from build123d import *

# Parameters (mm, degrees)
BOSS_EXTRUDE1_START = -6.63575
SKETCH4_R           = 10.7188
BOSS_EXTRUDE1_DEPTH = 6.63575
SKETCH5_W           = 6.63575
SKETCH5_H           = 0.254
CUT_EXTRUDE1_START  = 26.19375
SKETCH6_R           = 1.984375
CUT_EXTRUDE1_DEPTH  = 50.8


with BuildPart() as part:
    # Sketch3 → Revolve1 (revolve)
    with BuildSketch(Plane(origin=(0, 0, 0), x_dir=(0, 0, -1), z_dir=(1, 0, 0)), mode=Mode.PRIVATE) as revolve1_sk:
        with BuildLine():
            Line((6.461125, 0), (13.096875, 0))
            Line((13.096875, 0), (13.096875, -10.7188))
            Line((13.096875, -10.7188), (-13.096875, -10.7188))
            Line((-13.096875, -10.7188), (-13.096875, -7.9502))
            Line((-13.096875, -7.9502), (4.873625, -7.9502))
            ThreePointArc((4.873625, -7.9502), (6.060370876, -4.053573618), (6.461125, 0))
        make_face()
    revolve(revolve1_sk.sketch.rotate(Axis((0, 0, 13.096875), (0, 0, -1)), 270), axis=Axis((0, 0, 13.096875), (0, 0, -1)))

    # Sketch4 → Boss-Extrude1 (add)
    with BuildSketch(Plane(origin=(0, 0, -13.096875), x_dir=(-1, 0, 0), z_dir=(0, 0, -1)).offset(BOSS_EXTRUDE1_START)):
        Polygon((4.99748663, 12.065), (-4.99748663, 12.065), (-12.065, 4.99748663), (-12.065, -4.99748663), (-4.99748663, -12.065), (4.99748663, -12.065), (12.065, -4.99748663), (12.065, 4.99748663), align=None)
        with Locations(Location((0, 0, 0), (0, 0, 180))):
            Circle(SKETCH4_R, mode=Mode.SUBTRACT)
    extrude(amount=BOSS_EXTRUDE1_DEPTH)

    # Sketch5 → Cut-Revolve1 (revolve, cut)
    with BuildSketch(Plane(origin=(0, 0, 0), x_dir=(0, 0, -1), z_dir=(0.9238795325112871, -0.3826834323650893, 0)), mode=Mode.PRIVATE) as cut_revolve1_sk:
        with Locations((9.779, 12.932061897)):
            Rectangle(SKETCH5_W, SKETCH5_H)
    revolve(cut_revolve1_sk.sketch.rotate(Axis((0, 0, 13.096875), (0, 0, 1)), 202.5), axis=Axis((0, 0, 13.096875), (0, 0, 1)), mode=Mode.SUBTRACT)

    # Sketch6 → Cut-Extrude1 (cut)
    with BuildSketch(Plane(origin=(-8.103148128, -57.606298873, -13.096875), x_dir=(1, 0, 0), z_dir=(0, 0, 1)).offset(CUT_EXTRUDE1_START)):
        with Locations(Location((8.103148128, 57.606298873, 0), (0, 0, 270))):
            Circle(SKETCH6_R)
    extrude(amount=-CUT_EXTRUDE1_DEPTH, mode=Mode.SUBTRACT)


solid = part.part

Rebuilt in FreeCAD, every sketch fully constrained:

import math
import FreeCAD as App
import Part
import Sketcher
from FreeCAD import Vector
Q = App.Units.Quantity


def add_polygon(sketch, points):
    """Adds a closed chain of lines whose ends are joined by coincident constraints."""
    first, n = sketch.GeometryCount, len(points)
    for a, b in zip(points, points[1:] + points[:1]):
        sketch.addGeometry(Part.LineSegment(App.Vector(*a, 0), App.Vector(*b, 0)), False)
    for i in range(n):
        sketch.addConstraint(Sketcher.Constraint("Coincident", first + i, 2, first + (i + 1) % n, 1))

doc = App.newDocument("Part")
body = doc.addObject("PartDesign::Body", "Body")

sketch1 = doc.addObject("Sketcher::SketchObject", "Sketch")
body.addObject(sketch1)
sketch1.AttachmentSupport = (doc.YZ_Plane, [""])
sketch1.MapMode = "FlatFace"
sketch1.addGeometry(Part.LineSegment(Vector(0, -13.1, 0), Vector(0, -6.5, 0)), False)
sketch1.addGeometry(Part.ArcOfCircle(Part.Circle(Vector(0, 14.2, 0), Vector(0, 0, 1), 20.7), math.radians(-113), math.radians(-90)), False)
sketch1.addGeometry(Part.LineSegment(Vector(-8, -4.9, 0), Vector(-8, 13.1, 0)), False)
sketch1.addGeometry(Part.LineSegment(Vector(-8, 13.1, 0), Vector(-10.7, 13.1, 0)), False)
sketch1.addGeometry(Part.LineSegment(Vector(-10.7, 13.1, 0), Vector(-10.7, -13.1, 0)), False)
sketch1.addGeometry(Part.LineSegment(Vector(-10.7, -13.1, 0), Vector(0, -13.1, 0)), False)
sketch1.addConstraint(Sketcher.Constraint("Coincident", 0, 2, 1, 2))
sketch1.addConstraint(Sketcher.Constraint("Coincident", 1, 1, 2, 1))
sketch1.addConstraint(Sketcher.Constraint("Coincident", 2, 2, 3, 1))
sketch1.addConstraint(Sketcher.Constraint("Coincident", 3, 2, 4, 1))
sketch1.addConstraint(Sketcher.Constraint("Coincident", 4, 2, 5, 1))
sketch1.addConstraint(Sketcher.Constraint("Coincident", 5, 2, 0, 1))
sketch1.addConstraint(Sketcher.Constraint("Vertical", 0))
sketch1.addConstraint(Sketcher.Constraint("Vertical", 2))
sketch1.addConstraint(Sketcher.Constraint("Horizontal", 3))
sketch1.addConstraint(Sketcher.Constraint("Vertical", 4))
sketch1.addConstraint(Sketcher.Constraint("Horizontal", 5))
sketch1.addConstraint(Sketcher.Constraint("PointOnObject", 1, 3, -2))
sketch1.addConstraint(Sketcher.Constraint("PointOnObject", 0, 2, -2))
sketch1.addConstraint(Sketcher.Constraint("DistanceX", 3, 2, 3, 1, Q("0.109 in")))
sketch1.addConstraint(Sketcher.Constraint("DistanceX", 5, 1, 5, 2, Q("0.422 in")))
sketch1.addConstraint(Sketcher.Constraint("DistanceY", 4, 2, 4, 1, Q("1.03125 in")))
sketch1.addConstraint(Sketcher.Constraint("DistanceY", 0, 2, 2, 2, Q("0.77 in")))
sketch1.addConstraint(Sketcher.Constraint("DistanceY", 2, 1, 2, 2, Q("0.7075 in")))
sketch1.addConstraint(Sketcher.Constraint("DistanceY", -1, 1, 2, 2, Q("0.515625 in")))
revolution = doc.addObject("PartDesign::Revolution", "Revolution")
body.addObject(revolution)
revolution.Profile = sketch1
revolution.ReferenceAxis = (sketch1, ["V_Axis"])
revolution.Angle = 360

sketch2 = doc.addObject("Sketcher::SketchObject", "Sketch001")
body.addObject(sketch2)
sketch2.AttachmentSupport = (doc.XY_Plane, [""])
sketch2.MapMode = "FlatFace"
sketch2.AttachmentOffset = App.Placement(Vector(0, 0, -6.461125), App.Rotation())
add_polygon(sketch2, [(-5, 12), (5, 12), (12, 5), (12, -5), (5, -12), (-5, -12), (-12, -5), (-12, 5)])
sketch2.addGeometry(Part.Circle(Vector(0, 0, 0), Vector(0, 0, 1), 11), False)
sketch2.addConstraint(Sketcher.Constraint("Horizontal", 0))
sketch2.addConstraint(Sketcher.Constraint("Vertical", 2))
sketch2.addConstraint(Sketcher.Constraint("Horizontal", 4))
sketch2.addConstraint(Sketcher.Constraint("Vertical", 6))
sketch2.addConstraint(Sketcher.Constraint("Coincident", 8, 3, -1, 1))
sketch2.addConstraint(Sketcher.Constraint("Symmetric", 0, 2, 4, 2, -1, 1))
sketch2.addConstraint(Sketcher.Constraint("Symmetric", 1, 2, 5, 2, -1, 1))
sketch2.addConstraint(Sketcher.Constraint("Perpendicular", 1, 3))
sketch2.addConstraint(Sketcher.Constraint("Perpendicular", 5, 7))
sketch2.addConstraint(Sketcher.Constraint("Horizontal", 2, 2, 5, 2))
sketch2.addConstraint(Sketcher.Constraint("Horizontal", 1, 2, 6, 2))
sketch2.addConstraint(Sketcher.Constraint("Vertical", 0, 2, 3, 2))
sketch2.addConstraint(Sketcher.Constraint("Equal", 4, 2))
sketch2.addConstraint(Sketcher.Constraint("Diameter", 8, Q("0.844 in")))
sketch2.addConstraint(Sketcher.Constraint("DistanceY", 3, 2, 0, 2, Q("0.95 in")))
sketch2.addConstraint(Sketcher.Constraint("DistanceX", 0, 1, 0, 2, Q("9.994973 mm")))
pad1 = doc.addObject("PartDesign::Pad", "Pad")
body.addObject(pad1)
pad1.Profile = sketch2
pad1.Length = 6.63575
pad1.Reversed = True

sketch3 = doc.addObject("Sketcher::SketchObject", "Sketch002")
body.addObject(sketch3)
sketch3.Placement = App.Placement(Vector(0, 0, 0), App.Rotation(Vector(0, 0, -1), Vector(0.382683432, 0.923879533, 0), Vector(0.923879533, -0.382683432, 0), "ZXY"))
add_polygon(sketch3, [(6.46, 13.06), (6.46, 12.81), (13.1, 12.81), (13.1, 13.06)])
sketch3.addConstraint(Sketcher.Constraint("Vertical", 0))
sketch3.addConstraint(Sketcher.Constraint("Horizontal", 1))
sketch3.addConstraint(Sketcher.Constraint("Vertical", 2))
sketch3.addConstraint(Sketcher.Constraint("Horizontal", 3))
sketch3.addConstraint(Sketcher.Constraint("DistanceY", 0, 2, 0, 1, Q("0.01 in")))
sketch3.addConstraint(Sketcher.Constraint("DistanceX", -1, 1, 1, 2, Q("0.515625 in")))
sketch3.addConstraint(Sketcher.Constraint("DistanceX", 1, 1, 1, 2, Q("6.63575 mm")))
sketch3.addConstraint(Sketcher.Constraint("DistanceY", -1, 1, 0, 2, Q("12.805062 mm")))
groove = doc.addObject("PartDesign::Groove", "Groove")
body.addObject(groove)
groove.Profile = sketch3
groove.ReferenceAxis = (sketch3, ["H_Axis"])
groove.Angle = 360

sketch4 = doc.addObject("Sketcher::SketchObject", "Sketch003")
body.addObject(sketch4)
sketch4.AttachmentSupport = (doc.XY_Plane, [""])
sketch4.MapMode = "FlatFace"
sketch4.AttachmentOffset = App.Placement(Vector(0, 0, 0.515625 * 25.4), App.Rotation())
sketch4.addGeometry(Part.Circle(Vector(0, 0, 0), Vector(0, 0, 1), 2), False)
sketch4.addConstraint(Sketcher.Constraint("Coincident", 0, 3, -1, 1))
sketch4.addConstraint(Sketcher.Constraint("Diameter", 0, Q("0.15625 in")))
pocket1 = doc.addObject("PartDesign::Pocket", "Pocket")
body.addObject(pocket1)
pocket1.Profile = sketch4
pocket1.Length = Q("2 in")

doc.recompute()
